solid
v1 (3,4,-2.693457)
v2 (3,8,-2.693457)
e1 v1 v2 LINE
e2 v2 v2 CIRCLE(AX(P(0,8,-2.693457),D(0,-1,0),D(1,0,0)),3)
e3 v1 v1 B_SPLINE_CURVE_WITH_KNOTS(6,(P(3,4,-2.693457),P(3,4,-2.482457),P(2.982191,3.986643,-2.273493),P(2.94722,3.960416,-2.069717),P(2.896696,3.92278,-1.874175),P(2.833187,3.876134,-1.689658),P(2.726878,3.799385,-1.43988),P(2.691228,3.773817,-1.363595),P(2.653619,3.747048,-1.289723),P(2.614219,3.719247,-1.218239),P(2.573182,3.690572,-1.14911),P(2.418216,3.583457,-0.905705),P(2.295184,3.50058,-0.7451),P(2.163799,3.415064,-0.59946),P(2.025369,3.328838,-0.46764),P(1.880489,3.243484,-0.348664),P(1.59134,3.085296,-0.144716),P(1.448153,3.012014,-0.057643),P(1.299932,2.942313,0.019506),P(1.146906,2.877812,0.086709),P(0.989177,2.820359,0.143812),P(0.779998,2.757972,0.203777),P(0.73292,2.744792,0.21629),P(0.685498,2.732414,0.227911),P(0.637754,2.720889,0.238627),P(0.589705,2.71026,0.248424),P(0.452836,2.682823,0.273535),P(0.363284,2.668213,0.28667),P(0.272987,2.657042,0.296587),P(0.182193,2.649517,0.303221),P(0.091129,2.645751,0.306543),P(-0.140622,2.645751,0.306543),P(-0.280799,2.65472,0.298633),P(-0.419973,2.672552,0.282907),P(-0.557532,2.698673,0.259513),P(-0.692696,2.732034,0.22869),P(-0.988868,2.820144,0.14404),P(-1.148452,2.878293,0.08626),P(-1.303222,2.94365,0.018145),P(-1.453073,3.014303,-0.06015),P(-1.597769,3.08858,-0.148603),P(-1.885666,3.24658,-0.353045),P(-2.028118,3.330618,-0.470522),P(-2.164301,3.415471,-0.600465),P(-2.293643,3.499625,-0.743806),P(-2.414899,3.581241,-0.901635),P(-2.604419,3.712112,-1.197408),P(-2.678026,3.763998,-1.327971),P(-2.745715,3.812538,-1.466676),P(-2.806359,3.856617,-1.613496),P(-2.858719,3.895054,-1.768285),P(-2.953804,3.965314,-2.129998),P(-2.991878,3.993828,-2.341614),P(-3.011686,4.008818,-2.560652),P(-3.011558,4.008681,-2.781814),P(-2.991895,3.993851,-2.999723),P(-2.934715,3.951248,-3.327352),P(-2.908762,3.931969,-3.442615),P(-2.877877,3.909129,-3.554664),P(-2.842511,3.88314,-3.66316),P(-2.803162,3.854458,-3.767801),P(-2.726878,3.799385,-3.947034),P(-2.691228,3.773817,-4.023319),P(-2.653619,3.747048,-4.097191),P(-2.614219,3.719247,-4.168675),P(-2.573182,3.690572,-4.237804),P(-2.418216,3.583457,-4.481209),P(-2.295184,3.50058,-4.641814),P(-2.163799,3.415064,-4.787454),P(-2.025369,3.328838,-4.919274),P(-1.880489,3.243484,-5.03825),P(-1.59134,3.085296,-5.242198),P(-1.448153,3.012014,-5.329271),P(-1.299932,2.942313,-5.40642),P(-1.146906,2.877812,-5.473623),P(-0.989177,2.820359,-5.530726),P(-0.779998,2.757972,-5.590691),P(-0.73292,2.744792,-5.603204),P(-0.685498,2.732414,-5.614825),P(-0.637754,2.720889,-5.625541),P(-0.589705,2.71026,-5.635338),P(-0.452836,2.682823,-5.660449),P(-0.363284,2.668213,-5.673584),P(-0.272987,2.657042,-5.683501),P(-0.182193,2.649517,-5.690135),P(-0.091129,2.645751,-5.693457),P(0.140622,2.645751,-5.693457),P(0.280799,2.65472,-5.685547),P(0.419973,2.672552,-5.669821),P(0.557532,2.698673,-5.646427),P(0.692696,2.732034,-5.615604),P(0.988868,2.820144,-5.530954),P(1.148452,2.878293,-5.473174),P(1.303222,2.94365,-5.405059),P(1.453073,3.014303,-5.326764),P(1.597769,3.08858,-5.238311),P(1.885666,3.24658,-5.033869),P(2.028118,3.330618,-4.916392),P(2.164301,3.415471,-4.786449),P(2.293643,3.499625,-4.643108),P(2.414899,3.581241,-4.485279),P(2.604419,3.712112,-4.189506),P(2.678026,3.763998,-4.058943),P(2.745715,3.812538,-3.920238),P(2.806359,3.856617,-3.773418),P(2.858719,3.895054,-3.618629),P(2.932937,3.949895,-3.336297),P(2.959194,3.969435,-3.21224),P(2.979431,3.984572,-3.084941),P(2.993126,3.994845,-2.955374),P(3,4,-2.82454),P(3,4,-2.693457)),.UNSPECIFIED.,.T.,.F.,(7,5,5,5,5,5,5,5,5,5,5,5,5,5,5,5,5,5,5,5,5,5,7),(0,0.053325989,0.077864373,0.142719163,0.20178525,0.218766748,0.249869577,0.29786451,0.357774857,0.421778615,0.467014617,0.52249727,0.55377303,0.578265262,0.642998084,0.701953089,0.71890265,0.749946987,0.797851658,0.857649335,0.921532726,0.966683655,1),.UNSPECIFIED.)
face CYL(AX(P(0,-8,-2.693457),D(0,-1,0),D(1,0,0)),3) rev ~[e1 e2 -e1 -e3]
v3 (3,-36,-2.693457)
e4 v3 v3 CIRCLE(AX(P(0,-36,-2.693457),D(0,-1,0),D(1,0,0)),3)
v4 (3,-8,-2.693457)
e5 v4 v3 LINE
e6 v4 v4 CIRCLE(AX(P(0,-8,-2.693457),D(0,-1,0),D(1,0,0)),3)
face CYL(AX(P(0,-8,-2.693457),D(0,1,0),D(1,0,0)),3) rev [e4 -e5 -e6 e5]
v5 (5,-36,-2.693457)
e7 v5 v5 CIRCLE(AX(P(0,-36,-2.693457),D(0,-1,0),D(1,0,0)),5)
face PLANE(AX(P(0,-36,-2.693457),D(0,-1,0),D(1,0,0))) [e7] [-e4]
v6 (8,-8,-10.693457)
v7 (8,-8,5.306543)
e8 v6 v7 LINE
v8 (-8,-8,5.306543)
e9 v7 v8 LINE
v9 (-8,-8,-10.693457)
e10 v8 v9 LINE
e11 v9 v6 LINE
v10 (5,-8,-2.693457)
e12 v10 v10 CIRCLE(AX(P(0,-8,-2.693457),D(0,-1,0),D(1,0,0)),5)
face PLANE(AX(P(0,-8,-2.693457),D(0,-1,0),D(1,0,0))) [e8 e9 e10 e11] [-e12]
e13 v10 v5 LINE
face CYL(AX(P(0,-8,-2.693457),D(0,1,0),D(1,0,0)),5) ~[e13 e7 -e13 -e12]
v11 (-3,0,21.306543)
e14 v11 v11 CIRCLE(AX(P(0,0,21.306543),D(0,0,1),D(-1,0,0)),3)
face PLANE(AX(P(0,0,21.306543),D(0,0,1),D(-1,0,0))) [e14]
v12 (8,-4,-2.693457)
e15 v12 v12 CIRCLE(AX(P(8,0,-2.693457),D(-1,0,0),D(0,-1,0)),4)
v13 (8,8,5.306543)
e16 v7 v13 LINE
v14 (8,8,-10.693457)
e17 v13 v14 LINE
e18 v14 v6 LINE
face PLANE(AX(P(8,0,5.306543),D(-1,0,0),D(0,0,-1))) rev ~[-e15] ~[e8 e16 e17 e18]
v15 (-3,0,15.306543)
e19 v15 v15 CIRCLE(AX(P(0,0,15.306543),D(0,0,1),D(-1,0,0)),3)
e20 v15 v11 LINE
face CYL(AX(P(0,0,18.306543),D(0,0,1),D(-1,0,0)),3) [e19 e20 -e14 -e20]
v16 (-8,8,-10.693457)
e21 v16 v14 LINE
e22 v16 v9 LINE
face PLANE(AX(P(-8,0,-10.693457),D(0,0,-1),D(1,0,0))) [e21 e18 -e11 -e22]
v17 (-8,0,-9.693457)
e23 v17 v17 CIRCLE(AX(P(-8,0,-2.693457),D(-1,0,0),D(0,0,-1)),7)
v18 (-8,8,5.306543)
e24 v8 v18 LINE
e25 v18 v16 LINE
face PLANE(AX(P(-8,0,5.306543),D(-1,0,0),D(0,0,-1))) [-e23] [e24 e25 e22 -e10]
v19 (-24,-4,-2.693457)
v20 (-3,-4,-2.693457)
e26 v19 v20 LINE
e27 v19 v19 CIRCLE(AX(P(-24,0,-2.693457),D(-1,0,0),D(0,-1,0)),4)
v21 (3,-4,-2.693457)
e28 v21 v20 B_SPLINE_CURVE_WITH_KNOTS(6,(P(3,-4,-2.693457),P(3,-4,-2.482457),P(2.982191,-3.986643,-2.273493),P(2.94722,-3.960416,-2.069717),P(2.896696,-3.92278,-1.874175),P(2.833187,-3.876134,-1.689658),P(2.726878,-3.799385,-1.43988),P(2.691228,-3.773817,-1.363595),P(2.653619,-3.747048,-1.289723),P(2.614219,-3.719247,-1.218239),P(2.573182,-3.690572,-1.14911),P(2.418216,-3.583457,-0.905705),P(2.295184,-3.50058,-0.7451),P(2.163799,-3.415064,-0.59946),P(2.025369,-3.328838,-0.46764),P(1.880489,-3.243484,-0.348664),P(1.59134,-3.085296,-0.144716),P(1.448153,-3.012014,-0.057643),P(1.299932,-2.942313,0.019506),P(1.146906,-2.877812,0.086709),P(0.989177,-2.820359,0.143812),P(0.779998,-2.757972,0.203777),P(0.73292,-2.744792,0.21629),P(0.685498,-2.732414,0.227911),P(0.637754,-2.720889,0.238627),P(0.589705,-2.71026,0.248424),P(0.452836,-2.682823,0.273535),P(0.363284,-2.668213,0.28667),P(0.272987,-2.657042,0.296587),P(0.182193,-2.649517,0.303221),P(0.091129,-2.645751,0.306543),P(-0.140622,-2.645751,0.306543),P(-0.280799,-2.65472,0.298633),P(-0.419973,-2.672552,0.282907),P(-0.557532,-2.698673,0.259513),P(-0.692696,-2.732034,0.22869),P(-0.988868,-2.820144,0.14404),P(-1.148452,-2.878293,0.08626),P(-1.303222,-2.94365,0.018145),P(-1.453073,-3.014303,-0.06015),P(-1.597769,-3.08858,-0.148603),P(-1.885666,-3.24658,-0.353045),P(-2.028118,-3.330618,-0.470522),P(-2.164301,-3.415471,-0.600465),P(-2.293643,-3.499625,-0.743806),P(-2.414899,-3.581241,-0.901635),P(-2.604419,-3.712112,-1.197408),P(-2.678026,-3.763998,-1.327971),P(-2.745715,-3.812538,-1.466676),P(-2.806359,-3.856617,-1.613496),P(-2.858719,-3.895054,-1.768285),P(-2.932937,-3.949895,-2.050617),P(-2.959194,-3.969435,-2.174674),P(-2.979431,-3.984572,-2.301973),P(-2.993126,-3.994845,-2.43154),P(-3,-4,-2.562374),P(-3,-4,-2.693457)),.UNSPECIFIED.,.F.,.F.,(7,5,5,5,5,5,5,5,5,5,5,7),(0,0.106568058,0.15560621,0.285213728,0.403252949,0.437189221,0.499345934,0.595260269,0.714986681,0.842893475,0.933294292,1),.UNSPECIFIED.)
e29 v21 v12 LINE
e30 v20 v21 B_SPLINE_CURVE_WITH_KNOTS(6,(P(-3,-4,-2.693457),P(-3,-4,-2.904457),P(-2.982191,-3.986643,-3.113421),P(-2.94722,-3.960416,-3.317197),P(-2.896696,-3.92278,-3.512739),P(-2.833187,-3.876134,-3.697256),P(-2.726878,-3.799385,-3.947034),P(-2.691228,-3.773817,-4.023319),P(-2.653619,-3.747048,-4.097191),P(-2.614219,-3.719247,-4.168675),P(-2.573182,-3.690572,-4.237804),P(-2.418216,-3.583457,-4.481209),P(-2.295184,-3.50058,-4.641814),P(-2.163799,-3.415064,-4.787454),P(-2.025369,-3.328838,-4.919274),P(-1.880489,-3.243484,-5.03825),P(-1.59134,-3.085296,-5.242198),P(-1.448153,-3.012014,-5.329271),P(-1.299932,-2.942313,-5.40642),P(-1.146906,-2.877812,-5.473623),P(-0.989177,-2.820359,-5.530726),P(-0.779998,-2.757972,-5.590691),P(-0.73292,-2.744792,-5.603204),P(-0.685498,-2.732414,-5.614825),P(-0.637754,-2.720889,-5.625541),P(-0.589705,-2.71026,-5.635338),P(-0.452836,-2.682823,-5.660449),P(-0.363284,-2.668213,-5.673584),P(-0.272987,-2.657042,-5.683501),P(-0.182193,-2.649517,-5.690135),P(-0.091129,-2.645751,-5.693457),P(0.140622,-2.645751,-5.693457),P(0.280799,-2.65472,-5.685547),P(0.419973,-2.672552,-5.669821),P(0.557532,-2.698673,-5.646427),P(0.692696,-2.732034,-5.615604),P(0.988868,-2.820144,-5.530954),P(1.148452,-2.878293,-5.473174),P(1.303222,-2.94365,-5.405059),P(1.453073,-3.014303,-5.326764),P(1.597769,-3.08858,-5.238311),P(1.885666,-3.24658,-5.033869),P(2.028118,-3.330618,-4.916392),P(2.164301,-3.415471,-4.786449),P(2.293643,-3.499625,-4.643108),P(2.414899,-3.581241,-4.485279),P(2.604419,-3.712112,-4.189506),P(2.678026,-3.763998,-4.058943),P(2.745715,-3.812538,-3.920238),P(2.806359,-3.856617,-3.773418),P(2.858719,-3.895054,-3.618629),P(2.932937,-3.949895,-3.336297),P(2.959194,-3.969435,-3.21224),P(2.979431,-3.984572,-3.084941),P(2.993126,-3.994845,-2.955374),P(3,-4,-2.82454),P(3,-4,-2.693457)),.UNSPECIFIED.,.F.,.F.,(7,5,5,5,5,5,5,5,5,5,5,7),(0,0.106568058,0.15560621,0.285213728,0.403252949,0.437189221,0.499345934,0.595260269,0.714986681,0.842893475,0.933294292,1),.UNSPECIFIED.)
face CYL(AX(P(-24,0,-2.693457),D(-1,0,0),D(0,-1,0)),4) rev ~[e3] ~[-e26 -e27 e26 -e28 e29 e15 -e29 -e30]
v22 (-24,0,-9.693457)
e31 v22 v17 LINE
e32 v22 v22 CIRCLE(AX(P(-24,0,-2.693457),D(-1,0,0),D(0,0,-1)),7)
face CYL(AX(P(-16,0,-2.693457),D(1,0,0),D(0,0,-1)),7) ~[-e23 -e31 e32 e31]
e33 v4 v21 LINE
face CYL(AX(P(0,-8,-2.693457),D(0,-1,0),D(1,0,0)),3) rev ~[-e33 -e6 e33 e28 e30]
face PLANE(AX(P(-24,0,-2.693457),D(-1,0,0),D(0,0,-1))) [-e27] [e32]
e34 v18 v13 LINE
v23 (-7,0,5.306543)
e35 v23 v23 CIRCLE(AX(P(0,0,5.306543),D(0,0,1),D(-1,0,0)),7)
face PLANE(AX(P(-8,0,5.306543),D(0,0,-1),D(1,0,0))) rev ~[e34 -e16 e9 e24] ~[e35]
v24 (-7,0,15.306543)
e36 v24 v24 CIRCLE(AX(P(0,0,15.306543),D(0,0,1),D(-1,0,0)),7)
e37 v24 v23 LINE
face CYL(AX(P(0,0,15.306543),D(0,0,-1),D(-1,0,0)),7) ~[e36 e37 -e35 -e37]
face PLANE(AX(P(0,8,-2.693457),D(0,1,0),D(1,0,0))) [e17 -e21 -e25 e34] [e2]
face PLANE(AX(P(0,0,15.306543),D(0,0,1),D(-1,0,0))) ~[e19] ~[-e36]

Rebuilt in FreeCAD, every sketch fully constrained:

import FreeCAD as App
import Part
import Sketcher
from FreeCAD import Vector


def add_polygon(sketch, points):
    """Adds a closed chain of lines whose ends are joined by coincident constraints."""
    first, n = sketch.GeometryCount, len(points)
    for a, b in zip(points, points[1:] + points[:1]):
        sketch.addGeometry(Part.LineSegment(App.Vector(*a, 0), App.Vector(*b, 0)), False)
    for i in range(n):
        sketch.addConstraint(Sketcher.Constraint("Coincident", first + i, 2, first + (i + 1) % n, 1))

doc = App.newDocument("Part")
body = doc.addObject("PartDesign::Body", "Body")

sketch1 = body.newObject("Sketcher::SketchObject", "Sketch")
sketch1.AttachmentSupport = (doc.getObject("XZ_Plane"), [""])
sketch1.MapMode = "FlatFace"
add_polygon(sketch1, [(8, -11), (8, 5), (-8, 5), (-8, -11)])
sketch1.addConstraint([
    Sketcher.Constraint("Vertical", 0),
    Sketcher.Constraint("Horizontal", 1),
    Sketcher.Constraint("Vertical", 2),
    Sketcher.Constraint("Horizontal", 3),
    Sketcher.Constraint("Equal", 3, 0),
    Sketcher.Constraint("DistanceX", 1, 2, 1, 1, 16.0),
    Sketcher.Constraint("DistanceX", -1, 1, 0, 2, 8.0),
    Sketcher.Constraint("DistanceY", -1, 1, 0, 2, 5.306543),
])
pad1 = body.newObject("PartDesign::Pad", "Pad")
pad1.Profile = sketch1
pad1.Length = 8

sketch2 = body.newObject("Sketcher::SketchObject", "Sketch001")
sketch2.AttachmentSupport = (doc.getObject("XZ_Plane"), [""])
sketch2.MapMode = "FlatFace"
add_polygon(sketch2, [(-8, -11), (-8, 5), (8, 5), (8, -11)])
sketch2.addConstraint([
    Sketcher.Constraint("Vertical", 0),
    Sketcher.Constraint("Horizontal", 1),
    Sketcher.Constraint("Vertical", 2),
    Sketcher.Constraint("Horizontal", 3),
    Sketcher.Constraint("Equal", 3, 0),
    Sketcher.Constraint("DistanceX", 1, 1, 1, 2, 16.0),
    Sketcher.Constraint("DistanceX", 0, 2, -1, 1, 8.0),
    Sketcher.Constraint("DistanceY", -1, 1, 0, 2, 5.306543),
])
pad2 = body.newObject("PartDesign::Pad", "Pad001")
pad2.Profile = sketch2
pad2.Length = 8
pad2.Reversed = True

sketch3 = body.newObject("Sketcher::SketchObject", "Sketch002")
sketch3.AttachmentSupport = (doc.getObject("XZ_Plane"), [""])
sketch3.MapMode = "FlatFace"
add_polygon(sketch3, [(-3, 21.3), (-3, 15.3), (-7, 15.3), (-7, 5.3), (0, 5.3), (0, 21.3)])
sketch3.addConstraint([
    Sketcher.Constraint("Vertical", 0),
    Sketcher.Constraint("Horizontal", 1),
    Sketcher.Constraint("Vertical", 2),
    Sketcher.Constraint("Horizontal", 3),
    Sketcher.Constraint("Vertical", 4),
    Sketcher.Constraint("Horizontal", 5),
    Sketcher.Constraint("PointOnObject", 3, 2, -2),
    Sketcher.Constraint("DistanceX", 1, 2, 1, 1, 4.0),
    Sketcher.Constraint("DistanceX", 3, 1, 3, 2, 7.0),
    Sketcher.Constraint("DistanceY", 0, 2, 0, 1, 6.0),
    Sketcher.Constraint("DistanceY", 2, 2, 2, 1, 10.0),
    Sketcher.Constraint("DistanceY", -1, 1, 0, 2, 15.306543),
])
revolution = body.newObject("PartDesign::Revolution", "Revolution")
revolution.Profile = sketch3
revolution.ReferenceAxis = (sketch3, ["V_Axis"])
revolution.Angle = 360

sketch4 = body.newObject("Sketcher::SketchObject", "Sketch003")
sketch4.AttachmentSupport = (doc.getObject("XZ_Plane"), [""])
sketch4.MapMode = "FlatFace"
add_polygon(sketch4, [(-24, -3), (-24, -10), (-8, -10), (-8, -3)])
sketch4.addGeometry(Part.LineSegment(Vector(-8, -3, 0), Vector(-24, -3, 0)), True)
sketch4.addConstraint([
    Sketcher.Constraint("Vertical", 0),
    Sketcher.Constraint("Horizontal", 1),
    Sketcher.Constraint("Vertical", 2),
    Sketcher.Constraint("Horizontal", 3),
    Sketcher.Constraint("Horizontal", 4),
    Sketcher.Constraint("Coincident", 4, 1, 2, 2),
    Sketcher.Constraint("Vertical", 0, 2, 4, 2),
    Sketcher.Constraint("DistanceX", 1, 1, 1, 2, 16.0),
    Sketcher.Constraint("DistanceY", 0, 2, 0, 1, 7.0),
    Sketcher.Constraint("DistanceX", 0, 2, -1, 1, 24.0),
    Sketcher.Constraint("DistanceY", 0, 2, -1, 1, 9.693457),
])
revolution2 = body.newObject("PartDesign::Revolution", "Revolution001")
revolution2.Profile = sketch4
revolution2.ReferenceAxis = (sketch4, ["Axis0"])
revolution2.Angle = 360

sketch5 = body.newObject("Sketcher::SketchObject", "Sketch004")
sketch5.AttachmentSupport = (doc.getObject("YZ_Plane"), [""])
sketch5.MapMode = "FlatFace"
sketch5.AttachmentOffset = App.Placement(Vector(0, 0, -24), App.Rotation())
sketch5.addGeometry(Part.Circle(Vector(0, -2.7, 0), Vector(0, 0, 1), 4), False)
sketch5.addConstraint([
    Sketcher.Constraint("PointOnObject", 0, 3, -2),
    Sketcher.Constraint("Diameter", 0, 8.0),
    Sketcher.Constraint("DistanceY", 0, 3, -1, 1, 2.693457),
])
pocket1 = body.newObject("PartDesign::Pocket", "Pocket")
pocket1.Profile = sketch5
pocket1.Length = 37
pocket1.Reversed = True

sketch6 = body.newObject("Sketcher::SketchObject", "Sketch005")
sketch6.AttachmentSupport = (doc.getObject("XZ_Plane"), [""])
sketch6.MapMode = "FlatFace"
sketch6.AttachmentOffset = App.Placement(Vector(0, 0, 8), App.Rotation())
sketch6.addGeometry([
    Part.Circle(Vector(0, -2.7, 0), Vector(0, 0, 1), 5),
    Part.Circle(Vector(0, -2.7, 0), Vector(0, 0, 1), 3),
], False)
sketch6.addConstraint([
    Sketcher.Constraint("Coincident", 1, 3, 0, 3),
    Sketcher.Constraint("PointOnObject", 0, 3, -2),
    Sketcher.Constraint("Diameter", 0, 10.0),
    Sketcher.Constraint("Diameter", 1, 6.0),
    Sketcher.Constraint("DistanceY", 0, 3, -1, 1, 2.693457),
])
pad3 = body.newObject("PartDesign::Pad", "Pad002")
pad3.Profile = sketch6
pad3.Length = 28

sketch7 = body.newObject("Sketcher::SketchObject", "Sketch006")
sketch7.AttachmentSupport = (doc.getObject("XZ_Plane"), [""])
sketch7.MapMode = "FlatFace"
sketch7.AttachmentOffset = App.Placement(Vector(0, 0, 8), App.Rotation())
sketch7.addGeometry(Part.Circle(Vector(0, -2.7, 0), Vector(0, 0, 1), 3), False)
sketch7.addConstraint([
    Sketcher.Constraint("PointOnObject", 0, 3, -2),
    Sketcher.Constraint("Diameter", 0, 6.0),
    Sketcher.Constraint("DistanceY", 0, 3, -1, 1, 2.693457),
])
pocket2 = body.newObject("PartDesign::Pocket", "Pocket001")
pocket2.Profile = sketch7
pocket2.Length = 25

doc.recompute()
